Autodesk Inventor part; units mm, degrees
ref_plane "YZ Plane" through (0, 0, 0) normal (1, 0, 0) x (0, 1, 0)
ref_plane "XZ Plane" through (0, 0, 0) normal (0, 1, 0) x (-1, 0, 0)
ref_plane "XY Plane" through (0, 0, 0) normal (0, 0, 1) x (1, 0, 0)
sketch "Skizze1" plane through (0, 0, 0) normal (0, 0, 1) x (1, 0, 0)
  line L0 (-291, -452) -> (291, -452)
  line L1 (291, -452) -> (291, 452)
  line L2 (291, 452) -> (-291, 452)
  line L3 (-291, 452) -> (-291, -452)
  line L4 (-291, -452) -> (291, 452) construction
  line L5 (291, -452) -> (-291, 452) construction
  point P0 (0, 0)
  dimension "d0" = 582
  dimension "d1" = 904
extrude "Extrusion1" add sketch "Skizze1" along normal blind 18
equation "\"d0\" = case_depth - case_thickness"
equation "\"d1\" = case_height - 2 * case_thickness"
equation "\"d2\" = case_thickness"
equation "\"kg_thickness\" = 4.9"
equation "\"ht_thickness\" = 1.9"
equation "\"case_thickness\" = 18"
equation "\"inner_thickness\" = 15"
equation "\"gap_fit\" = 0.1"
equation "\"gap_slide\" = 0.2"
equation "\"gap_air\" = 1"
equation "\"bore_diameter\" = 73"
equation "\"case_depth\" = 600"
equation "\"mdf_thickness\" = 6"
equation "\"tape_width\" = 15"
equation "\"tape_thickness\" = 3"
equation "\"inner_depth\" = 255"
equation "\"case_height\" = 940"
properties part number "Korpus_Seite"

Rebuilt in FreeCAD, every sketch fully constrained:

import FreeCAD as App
import Part
import Sketcher

V = App.Vector

doc = App.newDocument("Part")
body = doc.addObject("PartDesign::Body", "Body")

sketch1 = body.newObject("Sketcher::SketchObject", "Sketch")
sketch1.AttachmentSupport = (doc.getObject("XY_Plane"), [""])
sketch1.MapMode = "FlatFace"
sketch1.addGeometry([
    Part.LineSegment(V(-291, 452, 0), V(-291, -452, 0)),
    Part.LineSegment(V(-291, -452, 0), V(291, -452, 0)),
    Part.LineSegment(V(291, -452, 0), V(291, 452, 0)),
    Part.LineSegment(V(291, 452, 0), V(-291, 452, 0)),
], False)
sketch1.addConstraint([
    Sketcher.Constraint("Coincident", 0, 2, 1, 1),
    Sketcher.Constraint("Coincident", 1, 2, 2, 1),
    Sketcher.Constraint("Coincident", 2, 2, 3, 1),
    Sketcher.Constraint("Coincident", 3, 2, 0, 1),
    Sketcher.Constraint("Vertical", 0),
    Sketcher.Constraint("Horizontal", 1),
    Sketcher.Constraint("Vertical", 2),
    Sketcher.Constraint("Horizontal", 3),
    Sketcher.Constraint("Symmetric", 0, 2, 2, 2, -1, 1),
    Sketcher.Constraint("DistanceX", 1, 1, 1, 2, 582.0),
    Sketcher.Constraint("DistanceY", 0, 2, 0, 1, 904.0),
])
pad1 = body.newObject("PartDesign::Pad", "Pad")
pad1.Profile = sketch1
pad1.Length = 18

doc.recompute()
